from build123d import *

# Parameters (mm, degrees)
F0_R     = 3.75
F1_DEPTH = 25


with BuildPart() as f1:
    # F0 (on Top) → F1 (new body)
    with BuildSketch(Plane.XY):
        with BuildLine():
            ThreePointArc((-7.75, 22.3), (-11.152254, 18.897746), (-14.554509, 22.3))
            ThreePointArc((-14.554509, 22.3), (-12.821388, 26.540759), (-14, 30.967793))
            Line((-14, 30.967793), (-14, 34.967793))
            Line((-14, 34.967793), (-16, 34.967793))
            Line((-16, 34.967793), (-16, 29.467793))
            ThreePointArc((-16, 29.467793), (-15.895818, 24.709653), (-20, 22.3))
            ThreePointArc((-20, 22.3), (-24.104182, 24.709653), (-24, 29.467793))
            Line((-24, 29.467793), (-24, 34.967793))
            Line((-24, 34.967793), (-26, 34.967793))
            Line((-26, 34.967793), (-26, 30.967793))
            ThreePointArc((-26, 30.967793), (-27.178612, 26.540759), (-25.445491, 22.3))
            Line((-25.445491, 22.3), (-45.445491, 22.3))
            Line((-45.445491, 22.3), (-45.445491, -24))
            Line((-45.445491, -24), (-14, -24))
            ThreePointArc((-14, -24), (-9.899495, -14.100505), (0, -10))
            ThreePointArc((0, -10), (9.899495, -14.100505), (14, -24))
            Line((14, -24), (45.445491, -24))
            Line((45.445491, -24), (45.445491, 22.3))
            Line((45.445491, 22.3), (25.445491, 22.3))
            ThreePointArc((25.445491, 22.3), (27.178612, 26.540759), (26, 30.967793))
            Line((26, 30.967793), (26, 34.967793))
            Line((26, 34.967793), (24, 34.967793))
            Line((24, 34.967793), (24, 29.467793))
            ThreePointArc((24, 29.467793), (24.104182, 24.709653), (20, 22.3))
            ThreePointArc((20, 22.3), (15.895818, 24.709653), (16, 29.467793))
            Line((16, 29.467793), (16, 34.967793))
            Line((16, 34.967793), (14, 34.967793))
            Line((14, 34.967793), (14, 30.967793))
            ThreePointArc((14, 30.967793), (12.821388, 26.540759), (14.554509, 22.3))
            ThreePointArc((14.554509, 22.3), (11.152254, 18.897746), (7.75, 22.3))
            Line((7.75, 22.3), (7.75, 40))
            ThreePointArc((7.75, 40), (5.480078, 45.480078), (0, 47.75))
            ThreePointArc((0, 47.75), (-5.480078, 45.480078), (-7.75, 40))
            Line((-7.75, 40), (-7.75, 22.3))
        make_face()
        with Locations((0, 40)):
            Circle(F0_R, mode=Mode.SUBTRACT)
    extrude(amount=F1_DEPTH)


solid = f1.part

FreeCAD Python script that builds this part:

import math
import FreeCAD as App
import Part
import Sketcher
from FreeCAD import Vector
Q = App.Units.Quantity

doc = App.newDocument("Part")
params = doc.addObject("Spreadsheet::Sheet", "Params")
for row, (alias, value) in enumerate([
    ("sketch1_radius", "14 mm"),
    ("sketch1_diameter", "7.5 mm"),
    ("sketch1_radius2", "4.7 mm"),
    ("sketch1_width", "2 mm"),
    ("sketch1_width2", "20 mm"),
    ("pad1_length", "25 mm"),
], start=1):
    params.set(f"A{row}", alias)
    params.set(f"B{row}", "=" + value)
    params.setAlias(f"B{row}", alias)

body = doc.addObject("PartDesign::Body", "Body")

sketch1 = body.newObject("Sketcher::SketchObject", "Sketch")
sketch1.AttachmentSupport = (doc.getObject("XY_Plane"), [""])
sketch1.MapMode = "FlatFace"
sketch1.addGeometry([
    Part.ArcOfCircle(Part.Circle(Vector(-11.152254, 22.3, 0), Vector(0, 0, 1), 3.402255), math.radians(-179.999992), math.radians(-0.000008)),
    Part.ArcOfCircle(Part.Circle(Vector(-20.000001, 27.000001, 0), Vector(0, 0, 1), 7.193288), math.radians(-40.797453), math.radians(33.476607)),
    Part.LineSegment(Vector(-14, 30.967793, 0), Vector(-14, 34.967793, 0)),
    Part.LineSegment(Vector(-14, 34.967793, 0), Vector(-16, 34.967793, 0)),
    Part.LineSegment(Vector(-16, 34.967793, 0), Vector(-16, 29.467793, 0)),
    Part.ArcOfCircle(Part.Circle(Vector(-20, 27, 0), Vector(0, 0, 1), 4.7), math.radians(-89.999997), math.radians(31.672433)),
    Part.ArcOfCircle(Part.Circle(Vector(-20, 27, 0), Vector(0, 0, 1), 4.7), math.radians(148.327567), math.radians(269.999997)),
    Part.LineSegment(Vector(-24, 29.467793, 0), Vector(-24, 34.967793, 0)),
    Part.LineSegment(Vector(-24, 34.967793, 0), Vector(-26, 34.967793, 0)),
    Part.LineSegment(Vector(-26, 34.967793, 0), Vector(-26, 30.967793, 0)),
    Part.ArcOfCircle(Part.Circle(Vector(-19.999999, 27.000001, 0), Vector(0, 0, 1), 7.193288), math.radians(146.523393), math.radians(220.797453)),
    Part.LineSegment(Vector(-25.445491, 22.3, 0), Vector(-45.445491, 22.3, 0)),
    Part.LineSegment(Vector(-45.445491, 22.3, 0), Vector(-45.445491, -24, 0)),
    Part.LineSegment(Vector(-45.445491, -24, 0), Vector(-14, -24, 0)),
    Part.ArcOfCircle(Part.Circle(Vector(0, -24, 0), Vector(0, 0, 1), 14), math.radians(89.999999), math.radians(180.000001)),
    Part.ArcOfCircle(Part.Circle(Vector(0, -24, 0), Vector(0, 0, 1), 14), math.radians(-0.000001), math.radians(90.000001)),
    Part.LineSegment(Vector(14, -24, 0), Vector(45.445491, -24, 0)),
    Part.LineSegment(Vector(45.445491, -24, 0), Vector(45.445491, 22.3, 0)),
    Part.LineSegment(Vector(45.445491, 22.3, 0), Vector(25.445491, 22.3, 0)),
    Part.ArcOfCircle(Part.Circle(Vector(19.999999, 27.000001, 0), Vector(0, 0, 1), 7.193288), math.radians(-40.797453), math.radians(33.476607)),
    Part.LineSegment(Vector(26, 30.967793, 0), Vector(26, 34.967793, 0)),
    Part.LineSegment(Vector(26, 34.967793, 0), Vector(24, 34.967793, 0)),
    Part.LineSegment(Vector(24, 34.967793, 0), Vector(24, 29.467793, 0)),
    Part.ArcOfCircle(Part.Circle(Vector(20, 27, 0), Vector(0, 0, 1), 4.7), math.radians(-89.999997), math.radians(31.672433)),
    Part.ArcOfCircle(Part.Circle(Vector(20, 27, 0), Vector(0, 0, 1), 4.7), math.radians(148.327567), math.radians(269.999997)),
    Part.LineSegment(Vector(16, 29.467793, 0), Vector(16, 34.967793, 0)),
    Part.LineSegment(Vector(16, 34.967793, 0), Vector(14, 34.967793, 0)),
    Part.LineSegment(Vector(14, 34.967793, 0), Vector(14, 30.967793, 0)),
    Part.ArcOfCircle(Part.Circle(Vector(20.000001, 27.000001, 0), Vector(0, 0, 1), 7.193288), math.radians(146.523393), math.radians(220.797453)),
    Part.ArcOfCircle(Part.Circle(Vector(11.152254, 22.3, 0), Vector(0, 0, 1), 3.402255), math.radians(-179.999992), math.radians(-0.000008)),
    Part.LineSegment(Vector(7.75, 22.3, 0), Vector(7.75, 40, 0)),
    Part.ArcOfCircle(Part.Circle(Vector(0.000002, 40.000002, 0), Vector(0, 0, 1), 7.749998), math.radians(-0.000011), math.radians(90.000011)),
    Part.ArcOfCircle(Part.Circle(Vector(-0.000002, 40.000002, 0), Vector(0, 0, 1), 7.749998), math.radians(89.999989), math.radians(180.000011)),
    Part.LineSegment(Vector(-7.75, 40, 0), Vector(-7.75, 22.3, 0)),
    Part.Circle(Vector(0, 40, 0), Vector(0, 0, 1), 3.75),
], False)
sketch1.addConstraint([
    Sketcher.Constraint("Coincident", 0, 1, 1, 1),
    Sketcher.Constraint("Coincident", 1, 2, 2, 1),
    Sketcher.Constraint("Coincident", 2, 2, 3, 1),
    Sketcher.Constraint("Coincident", 3, 2, 4, 1),
    Sketcher.Constraint("Coincident", 4, 2, 5, 2),
    Sketcher.Constraint("Tangent", 5, 1, 6, 2),
    Sketcher.Constraint("Coincident", 6, 1, 7, 1),
    Sketcher.Constraint("Coincident", 7, 2, 8, 1),
    Sketcher.Constraint("Coincident", 8, 2, 9, 1),
    Sketcher.Constraint("Coincident", 9, 2, 10, 1),
    Sketcher.Constraint("Coincident", 10, 2, 11, 1),
    Sketcher.Constraint("Coincident", 11, 2, 12, 1),
    Sketcher.Constraint("Coincident", 12, 2, 13, 1),
    Sketcher.Constraint("Coincident", 13, 2, 14, 2),
    Sketcher.Constraint("Tangent", 14, 1, 15, 2),
    Sketcher.Constraint("Coincident", 15, 1, 16, 1),
    Sketcher.Constraint("Coincident", 16, 2, 17, 1),
    Sketcher.Constraint("Coincident", 17, 2, 18, 1),
    Sketcher.Constraint("Coincident", 18, 2, 19, 1),
    Sketcher.Constraint("Coincident", 19, 2, 20, 1),
    Sketcher.Constraint("Coincident", 20, 2, 21, 1),
    Sketcher.Constraint("Coincident", 21, 2, 22, 1),
    Sketcher.Constraint("Coincident", 22, 2, 23, 2),
    Sketcher.Constraint("Tangent", 23, 1, 24, 2),
    Sketcher.Constraint("Coincident", 24, 1, 25, 1),
    Sketcher.Constraint("Coincident", 25, 2, 26, 1),
    Sketcher.Constraint("Coincident", 26, 2, 27, 1),
    Sketcher.Constraint("Coincident", 27, 2, 28, 1),
    Sketcher.Constraint("Coincident", 28, 2, 29, 2),
    Sketcher.Constraint("Tangent", 29, 1, 30, 1),
    Sketcher.Constraint("Tangent", 30, 2, 31, 1),
    Sketcher.Constraint("Tangent", 31, 2, 32, 1),
    Sketcher.Constraint("Tangent", 32, 2, 33, 1),
    Sketcher.Constraint("Tangent", 33, 2, 0, 2),
    Sketcher.Constraint("Vertical", 2),
    Sketcher.Constraint("Horizontal", 3),
    Sketcher.Constraint("Vertical", 4),
    Sketcher.Constraint("Vertical", 7),
    Sketcher.Constraint("Horizontal", 8),
    Sketcher.Constraint("Vertical", 9),
    Sketcher.Constraint("Horizontal", 11),
    Sketcher.Constraint("Vertical", 12),
    Sketcher.Constraint("Horizontal", 13),
    Sketcher.Constraint("Horizontal", 16),
    Sketcher.Constraint("Vertical", 17),
    Sketcher.Constraint("Horizontal", 18),
    Sketcher.Constraint("Vertical", 20),
    Sketcher.Constraint("Horizontal", 21),
    Sketcher.Constraint("Vertical", 22),
    Sketcher.Constraint("Vertical", 25),
    Sketcher.Constraint("Horizontal", 26),
    Sketcher.Constraint("Vertical", 27),
    Sketcher.Constraint("Vertical", 30),
    Sketcher.Constraint("Vertical", 33),
    Sketcher.Constraint("Coincident", 5, 3, 1, 3),
    Sketcher.Constraint("Coincident", 10, 3, 1, 3),
    Sketcher.Constraint("Coincident", 23, 3, 19, 3),
    Sketcher.Constraint("Coincident", 28, 3, 19, 3),
    Sketcher.Constraint("Coincident", 34, 3, 31, 3),
    Sketcher.Constraint("Equal", 5, 6),
    Sketcher.Constraint("Equal", 1, 10),
    Sketcher.Constraint("Equal", 14, 15),
    Sketcher.Constraint("Equal", 10, 19),
    Sketcher.Constraint("Equal", 6, 23),
    Sketcher.Constraint("Equal", 23, 24),
    Sketcher.Constraint("Equal", 19, 28),
    Sketcher.Constraint("Equal", 0, 29),
    Sketcher.Constraint("Equal", 31, 32),
    Sketcher.Constraint("Symmetric", 1, 3, 19, 3, -2),
    Sketcher.Constraint("Symmetric", 0, 3, 29, 3, -2),
    Sketcher.Constraint("Symmetric", 13, 2, 15, 1, -2),
    Sketcher.Constraint("Symmetric", 11, 2, 17, 2, -2),
    Sketcher.Constraint("Symmetric", 8, 2, 20, 2, -2),
    Sketcher.Constraint("Symmetric", 3, 2, 25, 2, -2),
    Sketcher.Constraint("PointOnObject", 14, 1, -2),
    Sketcher.Constraint("PointOnObject", 31, 2, -2),
    Sketcher.Constraint("Horizontal", 29, 3, 0, 1),
    Sketcher.Constraint("Horizontal", 0, 1, 5, 1),
    Sketcher.Constraint("Horizontal", 4, 2, 6, 1),
    Sketcher.Constraint("Horizontal", 3, 2, 7, 2),
    Sketcher.Constraint("Horizontal", 1, 2, 9, 2),
    Sketcher.Constraint("Horizontal", 5, 1, 10, 2),
    Sketcher.Constraint("Horizontal", 15, 3, 12, 2),
    Sketcher.Constraint("Horizontal", 6, 1, 22, 2),
    Sketcher.Constraint("Horizontal", 19, 2, 27, 2),
    Sketcher.Constraint("Vertical", 10, 3, 5, 1),
    Sketcher.Constraint("Vertical", 2, 2, 13, 2),
    Sketcher.Constraint("Vertical", 28, 3, 23, 1),
    Sketcher.Constraint("Radius", 14, Q("14 mm")),
    Sketcher.Constraint("Diameter", 34, Q("7.5 mm")),
    Sketcher.Constraint("Radius", 5, Q("4.7 mm")),
    Sketcher.Constraint("DistanceX", 3, 2, 3, 1, Q("2 mm")),
    Sketcher.Constraint("DistanceX", 11, 2, 11, 1, Q("20 mm")),
    Sketcher.Constraint("DistanceY", 2, 1, 2, 2, Q("4 mm")),
    Sketcher.Constraint("Radius", 31, Q("7.749998 mm")),
    Sketcher.Constraint("DistanceY", 4, 2, 4, 1, Q("5.5 mm")),
    Sketcher.Constraint("DistanceY", 12, 2, 12, 1, Q("46.3 mm")),
    Sketcher.Constraint("DistanceY", 30, 1, 30, 2, Q("17.7 mm")),
    Sketcher.Constraint("DistanceX", 1, 3, -1, 1, Q("20.000001 mm")),
    Sketcher.Constraint("DistanceY", -1, 1, 1, 3, Q("27.000001 mm")),
])
sketch1.setExpression("Constraints[88]", "Params.sketch1_radius")
sketch1.setExpression("Constraints[89]", "Params.sketch1_diameter")
sketch1.setExpression("Constraints[90]", "Params.sketch1_radius2")
sketch1.setExpression("Constraints[91]", "Params.sketch1_width")
sketch1.setExpression("Constraints[92]", "Params.sketch1_width2")
pad1 = body.newObject("PartDesign::Pad", "Pad")
pad1.Profile = sketch1
pad1.setExpression("Length", "Params.pad1_length")

doc.recompute()
